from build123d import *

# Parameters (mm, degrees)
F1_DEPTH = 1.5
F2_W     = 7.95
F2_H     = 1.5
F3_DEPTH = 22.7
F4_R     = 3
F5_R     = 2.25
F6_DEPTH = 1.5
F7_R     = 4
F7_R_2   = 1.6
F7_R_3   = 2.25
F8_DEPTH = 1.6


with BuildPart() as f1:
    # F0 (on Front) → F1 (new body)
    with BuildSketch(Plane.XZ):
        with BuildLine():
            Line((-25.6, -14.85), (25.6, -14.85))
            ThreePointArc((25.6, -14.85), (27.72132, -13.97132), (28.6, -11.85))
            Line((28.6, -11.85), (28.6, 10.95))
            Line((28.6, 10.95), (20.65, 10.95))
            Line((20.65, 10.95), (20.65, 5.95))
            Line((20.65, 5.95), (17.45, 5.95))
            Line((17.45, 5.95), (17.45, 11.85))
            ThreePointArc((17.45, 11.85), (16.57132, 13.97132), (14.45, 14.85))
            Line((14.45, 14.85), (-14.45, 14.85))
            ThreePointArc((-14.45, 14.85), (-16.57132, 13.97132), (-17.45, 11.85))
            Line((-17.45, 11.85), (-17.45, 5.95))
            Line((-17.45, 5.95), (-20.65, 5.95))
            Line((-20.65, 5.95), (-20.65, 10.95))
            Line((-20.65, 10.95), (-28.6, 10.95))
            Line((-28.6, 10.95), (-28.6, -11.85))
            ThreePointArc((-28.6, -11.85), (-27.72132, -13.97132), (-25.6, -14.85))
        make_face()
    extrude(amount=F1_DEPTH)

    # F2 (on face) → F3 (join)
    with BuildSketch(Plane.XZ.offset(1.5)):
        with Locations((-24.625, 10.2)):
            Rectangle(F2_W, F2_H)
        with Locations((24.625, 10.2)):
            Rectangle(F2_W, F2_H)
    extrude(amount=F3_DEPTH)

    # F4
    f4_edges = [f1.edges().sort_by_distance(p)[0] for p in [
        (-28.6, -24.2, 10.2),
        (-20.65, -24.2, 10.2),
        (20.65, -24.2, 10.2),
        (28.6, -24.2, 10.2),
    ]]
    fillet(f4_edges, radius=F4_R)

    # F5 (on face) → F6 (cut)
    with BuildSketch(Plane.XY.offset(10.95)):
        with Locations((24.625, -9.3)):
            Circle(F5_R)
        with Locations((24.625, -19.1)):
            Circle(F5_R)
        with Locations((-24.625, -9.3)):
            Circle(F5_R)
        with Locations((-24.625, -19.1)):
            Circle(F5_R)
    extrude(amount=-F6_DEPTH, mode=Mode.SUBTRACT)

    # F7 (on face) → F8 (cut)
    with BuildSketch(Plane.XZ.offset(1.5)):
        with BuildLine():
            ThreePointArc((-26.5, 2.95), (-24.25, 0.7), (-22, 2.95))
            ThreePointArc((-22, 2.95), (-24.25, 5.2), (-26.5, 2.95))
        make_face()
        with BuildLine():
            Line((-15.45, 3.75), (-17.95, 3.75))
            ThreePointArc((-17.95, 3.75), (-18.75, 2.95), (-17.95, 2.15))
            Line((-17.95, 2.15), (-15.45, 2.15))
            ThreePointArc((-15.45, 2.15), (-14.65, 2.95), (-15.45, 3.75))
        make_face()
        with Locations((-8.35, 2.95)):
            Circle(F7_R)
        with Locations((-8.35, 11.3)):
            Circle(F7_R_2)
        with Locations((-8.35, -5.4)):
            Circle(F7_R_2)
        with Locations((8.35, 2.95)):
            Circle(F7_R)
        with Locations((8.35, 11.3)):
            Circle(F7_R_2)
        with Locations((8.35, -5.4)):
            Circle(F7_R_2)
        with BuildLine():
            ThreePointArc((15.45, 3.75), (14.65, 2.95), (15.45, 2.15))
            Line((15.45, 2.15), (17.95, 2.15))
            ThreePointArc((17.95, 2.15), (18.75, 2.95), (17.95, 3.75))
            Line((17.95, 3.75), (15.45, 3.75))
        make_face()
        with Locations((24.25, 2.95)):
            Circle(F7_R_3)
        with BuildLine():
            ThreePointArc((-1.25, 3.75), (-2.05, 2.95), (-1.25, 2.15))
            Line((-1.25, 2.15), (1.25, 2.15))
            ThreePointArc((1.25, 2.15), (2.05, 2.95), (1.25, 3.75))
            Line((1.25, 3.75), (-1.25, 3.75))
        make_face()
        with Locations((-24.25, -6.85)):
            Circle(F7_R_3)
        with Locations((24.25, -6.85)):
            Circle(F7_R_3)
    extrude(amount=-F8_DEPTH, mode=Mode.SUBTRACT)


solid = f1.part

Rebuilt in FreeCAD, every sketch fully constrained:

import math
import FreeCAD as App
import Part
import Sketcher

V = App.Vector


def edges_at(feature, points):
    """Names of the edges that pass closest to the given points."""
    edges = feature.Shape.Edges
    near = lambda p: min(range(len(edges)), key=lambda i: edges[i].distToShape(Part.Vertex(*p))[0])
    return sorted({f"Edge{near(p) + 1}" for p in points})


def add_polygon(sketch, points):
    """Adds a closed chain of lines whose ends are joined by coincident constraints."""
    first, n = sketch.GeometryCount, len(points)
    for a, b in zip(points, points[1:] + points[:1]):
        sketch.addGeometry(Part.LineSegment(App.Vector(*a, 0), App.Vector(*b, 0)), False)
    for i in range(n):
        sketch.addConstraint(Sketcher.Constraint("Coincident", first + i, 2, first + (i + 1) % n, 1))

doc = App.newDocument("Part")
body = doc.addObject("PartDesign::Body", "Body")

sketch1 = body.newObject("Sketcher::SketchObject", "Sketch")
sketch1.AttachmentSupport = (doc.getObject("XZ_Plane"), [""])
sketch1.MapMode = "FlatFace"
sketch1.addGeometry(Part.LineSegment(V(-25.6, -14.8, 0), V(25.6, -14.8, 0)), False)
sketch1.addGeometry(Part.ArcOfCircle(Part.Circle(V(25.6, -11.8, 0), V(0, 0, 1), 3), math.radians(-90), math.radians(0)), False)
sketch1.addGeometry(Part.LineSegment(V(28.6, -11.8, 0), V(28.6, 10.9, 0)), False)
sketch1.addGeometry(Part.LineSegment(V(28.6, 10.9, 0), V(20.6, 10.9, 0)), False)
sketch1.addGeometry(Part.LineSegment(V(20.6, 10.9, 0), V(20.6, 6, 0)), False)
sketch1.addGeometry(Part.LineSegment(V(20.6, 6, 0), V(17.4, 6, 0)), False)
sketch1.addGeometry(Part.LineSegment(V(17.4, 6, 0), V(17.4, 11.8, 0)), False)
sketch1.addGeometry(Part.ArcOfCircle(Part.Circle(V(14.4, 11.8, 0), V(0, 0, 1), 3), math.radians(0), math.radians(90)), False)
sketch1.addGeometry(Part.LineSegment(V(14.4, 14.8, 0), V(-14.4, 14.8, 0)), False)
sketch1.addGeometry(Part.ArcOfCircle(Part.Circle(V(-14.4, 11.8, 0), V(0, 0, 1), 3), math.radians(90), math.radians(180)), False)
sketch1.addGeometry(Part.LineSegment(V(-17.4, 11.8, 0), V(-17.4, 6, 0)), False)
sketch1.addGeometry(Part.LineSegment(V(-17.4, 6, 0), V(-20.6, 6, 0)), False)
sketch1.addGeometry(Part.LineSegment(V(-20.6, 6, 0), V(-20.6, 10.9, 0)), False)
sketch1.addGeometry(Part.LineSegment(V(-20.6, 10.9, 0), V(-28.6, 10.9, 0)), False)
sketch1.addGeometry(Part.LineSegment(V(-28.6, 10.9, 0), V(-28.6, -11.8, 0)), False)
sketch1.addGeometry(Part.ArcOfCircle(Part.Circle(V(-25.6, -11.8, 0), V(0, 0, 1), 3), math.radians(-180), math.radians(-90)), False)
sketch1.addConstraint(Sketcher.Constraint("Tangent", 0, 2, 1, 1))
sketch1.addConstraint(Sketcher.Constraint("Tangent", 1, 2, 2, 1))
sketch1.addConstraint(Sketcher.Constraint("Coincident", 2, 2, 3, 1))
sketch1.addConstraint(Sketcher.Constraint("Coincident", 3, 2, 4, 1))
sketch1.addConstraint(Sketcher.Constraint("Coincident", 4, 2, 5, 1))
sketch1.addConstraint(Sketcher.Constraint("Coincident", 5, 2, 6, 1))
sketch1.addConstraint(Sketcher.Constraint("Tangent", 6, 2, 7, 1))
sketch1.addConstraint(Sketcher.Constraint("Tangent", 7, 2, 8, 1))
sketch1.addConstraint(Sketcher.Constraint("Tangent", 8, 2, 9, 1))
sketch1.addConstraint(Sketcher.Constraint("Tangent", 9, 2, 10, 1))
sketch1.addConstraint(Sketcher.Constraint("Coincident", 10, 2, 11, 1))
sketch1.addConstraint(Sketcher.Constraint("Coincident", 11, 2, 12, 1))
sketch1.addConstraint(Sketcher.Constraint("Coincident", 12, 2, 13, 1))
sketch1.addConstraint(Sketcher.Constraint("Coincident", 13, 2, 14, 1))
sketch1.addConstraint(Sketcher.Constraint("Tangent", 14, 2, 15, 1))
sketch1.addConstraint(Sketcher.Constraint("Tangent", 15, 2, 0, 1))
sketch1.addConstraint(Sketcher.Constraint("Horizontal", 0))
sketch1.addConstraint(Sketcher.Constraint("Vertical", 2))
sketch1.addConstraint(Sketcher.Constraint("Horizontal", 3))
sketch1.addConstraint(Sketcher.Constraint("Vertical", 4))
sketch1.addConstraint(Sketcher.Constraint("Horizontal", 5))
sketch1.addConstraint(Sketcher.Constraint("Vertical", 6))
sketch1.addConstraint(Sketcher.Constraint("Horizontal", 8))
sketch1.addConstraint(Sketcher.Constraint("Vertical", 10))
sketch1.addConstraint(Sketcher.Constraint("Horizontal", 11))
sketch1.addConstraint(Sketcher.Constraint("Vertical", 12))
sketch1.addConstraint(Sketcher.Constraint("Horizontal", 13))
sketch1.addConstraint(Sketcher.Constraint("Vertical", 14))
sketch1.addConstraint(Sketcher.Constraint("Equal", 1, 7))
sketch1.addConstraint(Sketcher.Constraint("Equal", 7, 9))
sketch1.addConstraint(Sketcher.Constraint("Equal", 9, 15))
sketch1.addConstraint(Sketcher.Constraint("Symmetric", 5, 2, 10, 2, -2))
sketch1.addConstraint(Sketcher.Constraint("Symmetric", 3, 2, 12, 2, -2))
sketch1.addConstraint(Sketcher.Constraint("Equal", 3, 13))
sketch1.addConstraint(Sketcher.Constraint("Radius", 1, 3.000001))
sketch1.addConstraint(Sketcher.Constraint("DistanceY", 4, 2, 4, 1, 5.0))
sketch1.addConstraint(Sketcher.Constraint("DistanceX", 0, 1, 0, 2, 51.2))
sketch1.addConstraint(Sketcher.Constraint("DistanceX", 5, 2, 5, 1, 3.2))
sketch1.addConstraint(Sketcher.Constraint("DistanceX", 8, 2, 8, 1, 28.9))
sketch1.addConstraint(Sketcher.Constraint("DistanceY", 2, 1, 2, 2, 22.8))
sketch1.addConstraint(Sketcher.Constraint("DistanceY", 6, 1, 6, 2, 5.9))
sketch1.addConstraint(Sketcher.Constraint("DistanceY", 1, 3, -1, 1, 11.849999))
pad1 = body.newObject("PartDesign::Pad", "Pad")
pad1.Profile = sketch1
pad1.Length = 1.5

sketch2 = body.newObject("Sketcher::SketchObject", "Sketch001")
sketch2.AttachmentSupport = (doc.getObject("XZ_Plane"), [""])
sketch2.MapMode = "FlatFace"
sketch2.AttachmentOffset = App.Placement(V(0, 0, 1.5), App.Rotation())
add_polygon(sketch2, [(-28.6, 10.9), (-28.6, 9.4), (-20.6, 9.4), (-20.6, 10.9)])
add_polygon(sketch2, [(20.6, 10.9), (20.6, 9.4), (28.6, 9.4), (28.6, 10.9)])
sketch2.addConstraint(Sketcher.Constraint("Vertical", 0))
sketch2.addConstraint(Sketcher.Constraint("Horizontal", 1))
sketch2.addConstraint(Sketcher.Constraint("Vertical", 2))
sketch2.addConstraint(Sketcher.Constraint("Horizontal", 3))
sketch2.addConstraint(Sketcher.Constraint("Vertical", 4))
sketch2.addConstraint(Sketcher.Constraint("Horizontal", 5))
sketch2.addConstraint(Sketcher.Constraint("Vertical", 6))
sketch2.addConstraint(Sketcher.Constraint("Horizontal", 7))
sketch2.addConstraint(Sketcher.Constraint("Symmetric", 1, 2, 4, 2, -2))
sketch2.addConstraint(Sketcher.Constraint("Symmetric", 3, 2, 6, 2, -2))
sketch2.addConstraint(Sketcher.Constraint("DistanceY", 0, 2, 0, 1, 1.5))
sketch2.addConstraint(Sketcher.Constraint("DistanceX", 1, 1, 1, 2, 7.95))
sketch2.addConstraint(Sketcher.Constraint("DistanceX", 0, 2, -1, 1, 28.6))
sketch2.addConstraint(Sketcher.Constraint("DistanceY", -1, 1, 0, 2, 9.45))
pad2 = body.newObject("PartDesign::Pad", "Pad001")
pad2.Profile = sketch2
pad2.Length = 22.7
doc.recompute()

fillet = body.newObject("PartDesign::Fillet", "Fillet")
fillet.Base = (pad2, edges_at(pad2, [
    (-28.6, -24.2, 10.2),
    (-20.65, -24.2, 10.2),
    (20.65, -24.2, 10.2),
    (28.6, -24.2, 10.2),
]))
fillet.Radius = 3

sketch3 = body.newObject("Sketcher::SketchObject", "Sketch002")
sketch3.AttachmentSupport = (doc.getObject("XY_Plane"), [""])
sketch3.MapMode = "FlatFace"
sketch3.AttachmentOffset = App.Placement(V(0, 0, 10.95), App.Rotation())
sketch3.addGeometry(Part.Circle(V(24.6, -9.3, 0), V(0, 0, 1), 2.2), False)
sketch3.addGeometry(Part.Circle(V(24.6, -19.1, 0), V(0, 0, 1), 2.2), False)
sketch3.addGeometry(Part.Circle(V(-24.6, -9.3, 0), V(0, 0, 1), 2.2), False)
sketch3.addGeometry(Part.Circle(V(-24.6, -19.1, 0), V(0, 0, 1), 2.2), False)
sketch3.addConstraint(Sketcher.Constraint("Equal", 0, 1))
sketch3.addConstraint(Sketcher.Constraint("Equal", 1, 2))
sketch3.addConstraint(Sketcher.Constraint("Equal", 2, 3))
sketch3.addConstraint(Sketcher.Constraint("Symmetric", 0, 3, 2, 3, -2))
sketch3.addConstraint(Sketcher.Constraint("Symmetric", 1, 3, 3, 3, -2))
sketch3.addConstraint(Sketcher.Constraint("Vertical", 0, 3, 1, 3))
sketch3.addConstraint(Sketcher.Constraint("Diameter", 0, 4.5))
sketch3.addConstraint(Sketcher.Constraint("DistanceY", 0, 3, -1, 1, 9.3))
sketch3.addConstraint(Sketcher.Constraint("DistanceY", 1, 3, -1, 1, 19.1))
sketch3.addConstraint(Sketcher.Constraint("DistanceX", 2, 3, 0, 3, 49.25))
pocket1 = body.newObject("PartDesign::Pocket", "Pocket")
pocket1.Profile = sketch3
pocket1.Length = 1.5

sketch4 = body.newObject("Sketcher::SketchObject", "Sketch003")
sketch4.AttachmentSupport = (doc.getObject("XZ_Plane"), [""])
sketch4.MapMode = "FlatFace"
sketch4.AttachmentOffset = App.Placement(V(0, 0, 1.5), App.Rotation())
sketch4.addGeometry(Part.Circle(V(-24.2, 3, 0), V(0, 0, 1), 2.2), False)
sketch4.addGeometry(Part.LineSegment(V(-15.4, 3.8, 0), V(-17.9, 3.8, 0)), False)
sketch4.addGeometry(Part.ArcOfCircle(Part.Circle(V(-17.9, 3, 0), V(0, 0, 1), 0.8), math.radians(90), math.radians(270)), False)
sketch4.addGeometry(Part.LineSegment(V(-17.9, 2.1, 0), V(-15.4, 2.1, 0)), False)
sketch4.addGeometry(Part.ArcOfCircle(Part.Circle(V(-15.4, 3, 0), V(0, 0, 1), 0.8), math.radians(-90), math.radians(90)), False)
sketch4.addGeometry(Part.Circle(V(-8.3, 3, 0), V(0, 0, 1), 4), False)
sketch4.addGeometry(Part.Circle(V(-8.3, 11.3, 0), V(0, 0, 1), 1.6), False)
sketch4.addGeometry(Part.Circle(V(-8.3, -5.4, 0), V(0, 0, 1), 1.6), False)
sketch4.addGeometry(Part.Circle(V(8.3, 3, 0), V(0, 0, 1), 4), False)
sketch4.addGeometry(Part.Circle(V(8.3, 11.3, 0), V(0, 0, 1), 1.6), False)
sketch4.addGeometry(Part.Circle(V(8.3, -5.4, 0), V(0, 0, 1), 1.6), False)
sketch4.addGeometry(Part.ArcOfCircle(Part.Circle(V(15.4, 3, 0), V(0, 0, 1), 0.8), math.radians(90), math.radians(270)), False)
sketch4.addGeometry(Part.LineSegment(V(15.4, 2.1, 0), V(17.9, 2.1, 0)), False)
sketch4.addGeometry(Part.ArcOfCircle(Part.Circle(V(17.9, 3, 0), V(0, 0, 1), 0.8), math.radians(-90), math.radians(90)), False)
sketch4.addGeometry(Part.LineSegment(V(17.9, 3.8, 0), V(15.4, 3.8, 0)), False)
sketch4.addGeometry(Part.Circle(V(24.2, 3, 0), V(0, 0, 1), 2.2), False)
sketch4.addGeometry(Part.ArcOfCircle(Part.Circle(V(-1.2, 3, 0), V(0, 0, 1), 0.8), math.radians(90), math.radians(270)), False)
sketch4.addGeometry(Part.LineSegment(V(-1.2, 2.1, 0), V(1.2, 2.1, 0)), False)
sketch4.addGeometry(Part.ArcOfCircle(Part.Circle(V(1.2, 3, 0), V(0, 0, 1), 0.8), math.radians(-90), math.radians(90)), False)
sketch4.addGeometry(Part.LineSegment(V(1.2, 3.8, 0), V(-1.2, 3.8, 0)), False)
sketch4.addGeometry(Part.Circle(V(-24.2, -6.8, 0), V(0, 0, 1), 2.2), False)
sketch4.addGeometry(Part.Circle(V(24.2, -6.8, 0), V(0, 0, 1), 2.2), False)
sketch4.addConstraint(Sketcher.Constraint("Tangent", 1, 2, 2, 1))
sketch4.addConstraint(Sketcher.Constraint("Tangent", 2, 2, 3, 1))
sketch4.addConstraint(Sketcher.Constraint("Tangent", 3, 2, 4, 1))
sketch4.addConstraint(Sketcher.Constraint("Tangent", 4, 2, 1, 1))
sketch4.addConstraint(Sketcher.Constraint("Tangent", 11, 2, 12, 1))
sketch4.addConstraint(Sketcher.Constraint("Tangent", 12, 2, 13, 1))
sketch4.addConstraint(Sketcher.Constraint("Tangent", 13, 2, 14, 1))
sketch4.addConstraint(Sketcher.Constraint("Tangent", 14, 2, 11, 1))
sketch4.addConstraint(Sketcher.Constraint("Tangent", 16, 2, 17, 1))
sketch4.addConstraint(Sketcher.Constraint("Tangent", 17, 2, 18, 1))
sketch4.addConstraint(Sketcher.Constraint("Tangent", 18, 2, 19, 1))
sketch4.addConstraint(Sketcher.Constraint("Tangent", 19, 2, 16, 1))
sketch4.addConstraint(Sketcher.Constraint("Horizontal", 1))
sketch4.addConstraint(Sketcher.Constraint("Horizontal", 3))
sketch4.addConstraint(Sketcher.Constraint("Horizontal", 12))
sketch4.addConstraint(Sketcher.Constraint("Horizontal", 14))
sketch4.addConstraint(Sketcher.Constraint("Horizontal", 17))
sketch4.addConstraint(Sketcher.Constraint("Horizontal", 19))
sketch4.addConstraint(Sketcher.Constraint("Equal", 6, 7))
sketch4.addConstraint(Sketcher.Constraint("Equal", 5, 8))
sketch4.addConstraint(Sketcher.Constraint("Equal", 7, 9))
sketch4.addConstraint(Sketcher.Constraint("Equal", 9, 10))
sketch4.addConstraint(Sketcher.Constraint("Equal", 4, 11))
sketch4.addConstraint(Sketcher.Constraint("Equal", 0, 15))
sketch4.addConstraint(Sketcher.Constraint("Equal", 13, 16))
sketch4.addConstraint(Sketcher.Constraint("Equal", 15, 20))
sketch4.addConstraint(Sketcher.Constraint("Equal", 20, 21))
sketch4.addConstraint(Sketcher.Constraint("Symmetric", 5, 3, 8, 3, -2))
sketch4.addConstraint(Sketcher.Constraint("Symmetric", 6, 3, 9, 3, -2))
sketch4.addConstraint(Sketcher.Constraint("Symmetric", 7, 3, 10, 3, -2))
sketch4.addConstraint(Sketcher.Constraint("Symmetric", 4, 3, 11, 3, -2))
sketch4.addConstraint(Sketcher.Constraint("Symmetric", 0, 3, 15, 3, -2))
sketch4.addConstraint(Sketcher.Constraint("Symmetric", 20, 3, 21, 3, -2))
sketch4.addConstraint(Sketcher.Constraint("Horizontal", 0, 3, 2, 3))
sketch4.addConstraint(Sketcher.Constraint("Horizontal", 4, 3, 5, 3))
sketch4.addConstraint(Sketcher.Constraint("Horizontal", 15, 3, 16, 3))
sketch4.addConstraint(Sketcher.Constraint("Vertical", 5, 3, 6, 3))
sketch4.addConstraint(Sketcher.Constraint("Vertical", 6, 3, 7, 3))
sketch4.addConstraint(Sketcher.Constraint("Vertical", 0, 3, 20, 3))
sketch4.addConstraint(Sketcher.Constraint("Equal", 3, 12))
sketch4.addConstraint(Sketcher.Constraint("Equal", 14, 17))
sketch4.addConstraint(Sketcher.Constraint("Diameter", 5, 8.0))
sketch4.addConstraint(Sketcher.Constraint("Diameter", 0, 4.5))
sketch4.addConstraint(Sketcher.Constraint("Diameter", 6, 3.2))
sketch4.addConstraint(Sketcher.Constraint("Radius", 2, 0.8))
sketch4.addConstraint(Sketcher.Constraint("DistanceX", 1, 2, 1, 1, 2.5))
sketch4.addConstraint(Sketcher.Constraint("DistanceY", -1, 1, 6, 3, 11.3))
sketch4.addConstraint(Sketcher.Constraint("DistanceY", 7, 3, -1, 1, 5.4))
sketch4.addConstraint(Sketcher.Constraint("DistanceX", 0, 3, 2, 3, 6.3))
sketch4.addConstraint(Sketcher.Constraint("DistanceX", 4, 3, 5, 3, 7.1))
sketch4.addConstraint(Sketcher.Constraint("DistanceX", 5, 3, 8, 3, 16.7))
sketch4.addConstraint(Sketcher.Constraint("DistanceX", 5, 3, 16, 3, 7.1))
sketch4.addConstraint(Sketcher.Constraint("DistanceY", 20, 3, 0, 3, 9.8))
sketch4.addConstraint(Sketcher.Constraint("DistanceY", -1, 1, 0, 3, 2.95))
pocket2 = body.newObject("PartDesign::Pocket", "Pocket001")
pocket2.Profile = sketch4
pocket2.Length = 1.6

doc.recompute()
